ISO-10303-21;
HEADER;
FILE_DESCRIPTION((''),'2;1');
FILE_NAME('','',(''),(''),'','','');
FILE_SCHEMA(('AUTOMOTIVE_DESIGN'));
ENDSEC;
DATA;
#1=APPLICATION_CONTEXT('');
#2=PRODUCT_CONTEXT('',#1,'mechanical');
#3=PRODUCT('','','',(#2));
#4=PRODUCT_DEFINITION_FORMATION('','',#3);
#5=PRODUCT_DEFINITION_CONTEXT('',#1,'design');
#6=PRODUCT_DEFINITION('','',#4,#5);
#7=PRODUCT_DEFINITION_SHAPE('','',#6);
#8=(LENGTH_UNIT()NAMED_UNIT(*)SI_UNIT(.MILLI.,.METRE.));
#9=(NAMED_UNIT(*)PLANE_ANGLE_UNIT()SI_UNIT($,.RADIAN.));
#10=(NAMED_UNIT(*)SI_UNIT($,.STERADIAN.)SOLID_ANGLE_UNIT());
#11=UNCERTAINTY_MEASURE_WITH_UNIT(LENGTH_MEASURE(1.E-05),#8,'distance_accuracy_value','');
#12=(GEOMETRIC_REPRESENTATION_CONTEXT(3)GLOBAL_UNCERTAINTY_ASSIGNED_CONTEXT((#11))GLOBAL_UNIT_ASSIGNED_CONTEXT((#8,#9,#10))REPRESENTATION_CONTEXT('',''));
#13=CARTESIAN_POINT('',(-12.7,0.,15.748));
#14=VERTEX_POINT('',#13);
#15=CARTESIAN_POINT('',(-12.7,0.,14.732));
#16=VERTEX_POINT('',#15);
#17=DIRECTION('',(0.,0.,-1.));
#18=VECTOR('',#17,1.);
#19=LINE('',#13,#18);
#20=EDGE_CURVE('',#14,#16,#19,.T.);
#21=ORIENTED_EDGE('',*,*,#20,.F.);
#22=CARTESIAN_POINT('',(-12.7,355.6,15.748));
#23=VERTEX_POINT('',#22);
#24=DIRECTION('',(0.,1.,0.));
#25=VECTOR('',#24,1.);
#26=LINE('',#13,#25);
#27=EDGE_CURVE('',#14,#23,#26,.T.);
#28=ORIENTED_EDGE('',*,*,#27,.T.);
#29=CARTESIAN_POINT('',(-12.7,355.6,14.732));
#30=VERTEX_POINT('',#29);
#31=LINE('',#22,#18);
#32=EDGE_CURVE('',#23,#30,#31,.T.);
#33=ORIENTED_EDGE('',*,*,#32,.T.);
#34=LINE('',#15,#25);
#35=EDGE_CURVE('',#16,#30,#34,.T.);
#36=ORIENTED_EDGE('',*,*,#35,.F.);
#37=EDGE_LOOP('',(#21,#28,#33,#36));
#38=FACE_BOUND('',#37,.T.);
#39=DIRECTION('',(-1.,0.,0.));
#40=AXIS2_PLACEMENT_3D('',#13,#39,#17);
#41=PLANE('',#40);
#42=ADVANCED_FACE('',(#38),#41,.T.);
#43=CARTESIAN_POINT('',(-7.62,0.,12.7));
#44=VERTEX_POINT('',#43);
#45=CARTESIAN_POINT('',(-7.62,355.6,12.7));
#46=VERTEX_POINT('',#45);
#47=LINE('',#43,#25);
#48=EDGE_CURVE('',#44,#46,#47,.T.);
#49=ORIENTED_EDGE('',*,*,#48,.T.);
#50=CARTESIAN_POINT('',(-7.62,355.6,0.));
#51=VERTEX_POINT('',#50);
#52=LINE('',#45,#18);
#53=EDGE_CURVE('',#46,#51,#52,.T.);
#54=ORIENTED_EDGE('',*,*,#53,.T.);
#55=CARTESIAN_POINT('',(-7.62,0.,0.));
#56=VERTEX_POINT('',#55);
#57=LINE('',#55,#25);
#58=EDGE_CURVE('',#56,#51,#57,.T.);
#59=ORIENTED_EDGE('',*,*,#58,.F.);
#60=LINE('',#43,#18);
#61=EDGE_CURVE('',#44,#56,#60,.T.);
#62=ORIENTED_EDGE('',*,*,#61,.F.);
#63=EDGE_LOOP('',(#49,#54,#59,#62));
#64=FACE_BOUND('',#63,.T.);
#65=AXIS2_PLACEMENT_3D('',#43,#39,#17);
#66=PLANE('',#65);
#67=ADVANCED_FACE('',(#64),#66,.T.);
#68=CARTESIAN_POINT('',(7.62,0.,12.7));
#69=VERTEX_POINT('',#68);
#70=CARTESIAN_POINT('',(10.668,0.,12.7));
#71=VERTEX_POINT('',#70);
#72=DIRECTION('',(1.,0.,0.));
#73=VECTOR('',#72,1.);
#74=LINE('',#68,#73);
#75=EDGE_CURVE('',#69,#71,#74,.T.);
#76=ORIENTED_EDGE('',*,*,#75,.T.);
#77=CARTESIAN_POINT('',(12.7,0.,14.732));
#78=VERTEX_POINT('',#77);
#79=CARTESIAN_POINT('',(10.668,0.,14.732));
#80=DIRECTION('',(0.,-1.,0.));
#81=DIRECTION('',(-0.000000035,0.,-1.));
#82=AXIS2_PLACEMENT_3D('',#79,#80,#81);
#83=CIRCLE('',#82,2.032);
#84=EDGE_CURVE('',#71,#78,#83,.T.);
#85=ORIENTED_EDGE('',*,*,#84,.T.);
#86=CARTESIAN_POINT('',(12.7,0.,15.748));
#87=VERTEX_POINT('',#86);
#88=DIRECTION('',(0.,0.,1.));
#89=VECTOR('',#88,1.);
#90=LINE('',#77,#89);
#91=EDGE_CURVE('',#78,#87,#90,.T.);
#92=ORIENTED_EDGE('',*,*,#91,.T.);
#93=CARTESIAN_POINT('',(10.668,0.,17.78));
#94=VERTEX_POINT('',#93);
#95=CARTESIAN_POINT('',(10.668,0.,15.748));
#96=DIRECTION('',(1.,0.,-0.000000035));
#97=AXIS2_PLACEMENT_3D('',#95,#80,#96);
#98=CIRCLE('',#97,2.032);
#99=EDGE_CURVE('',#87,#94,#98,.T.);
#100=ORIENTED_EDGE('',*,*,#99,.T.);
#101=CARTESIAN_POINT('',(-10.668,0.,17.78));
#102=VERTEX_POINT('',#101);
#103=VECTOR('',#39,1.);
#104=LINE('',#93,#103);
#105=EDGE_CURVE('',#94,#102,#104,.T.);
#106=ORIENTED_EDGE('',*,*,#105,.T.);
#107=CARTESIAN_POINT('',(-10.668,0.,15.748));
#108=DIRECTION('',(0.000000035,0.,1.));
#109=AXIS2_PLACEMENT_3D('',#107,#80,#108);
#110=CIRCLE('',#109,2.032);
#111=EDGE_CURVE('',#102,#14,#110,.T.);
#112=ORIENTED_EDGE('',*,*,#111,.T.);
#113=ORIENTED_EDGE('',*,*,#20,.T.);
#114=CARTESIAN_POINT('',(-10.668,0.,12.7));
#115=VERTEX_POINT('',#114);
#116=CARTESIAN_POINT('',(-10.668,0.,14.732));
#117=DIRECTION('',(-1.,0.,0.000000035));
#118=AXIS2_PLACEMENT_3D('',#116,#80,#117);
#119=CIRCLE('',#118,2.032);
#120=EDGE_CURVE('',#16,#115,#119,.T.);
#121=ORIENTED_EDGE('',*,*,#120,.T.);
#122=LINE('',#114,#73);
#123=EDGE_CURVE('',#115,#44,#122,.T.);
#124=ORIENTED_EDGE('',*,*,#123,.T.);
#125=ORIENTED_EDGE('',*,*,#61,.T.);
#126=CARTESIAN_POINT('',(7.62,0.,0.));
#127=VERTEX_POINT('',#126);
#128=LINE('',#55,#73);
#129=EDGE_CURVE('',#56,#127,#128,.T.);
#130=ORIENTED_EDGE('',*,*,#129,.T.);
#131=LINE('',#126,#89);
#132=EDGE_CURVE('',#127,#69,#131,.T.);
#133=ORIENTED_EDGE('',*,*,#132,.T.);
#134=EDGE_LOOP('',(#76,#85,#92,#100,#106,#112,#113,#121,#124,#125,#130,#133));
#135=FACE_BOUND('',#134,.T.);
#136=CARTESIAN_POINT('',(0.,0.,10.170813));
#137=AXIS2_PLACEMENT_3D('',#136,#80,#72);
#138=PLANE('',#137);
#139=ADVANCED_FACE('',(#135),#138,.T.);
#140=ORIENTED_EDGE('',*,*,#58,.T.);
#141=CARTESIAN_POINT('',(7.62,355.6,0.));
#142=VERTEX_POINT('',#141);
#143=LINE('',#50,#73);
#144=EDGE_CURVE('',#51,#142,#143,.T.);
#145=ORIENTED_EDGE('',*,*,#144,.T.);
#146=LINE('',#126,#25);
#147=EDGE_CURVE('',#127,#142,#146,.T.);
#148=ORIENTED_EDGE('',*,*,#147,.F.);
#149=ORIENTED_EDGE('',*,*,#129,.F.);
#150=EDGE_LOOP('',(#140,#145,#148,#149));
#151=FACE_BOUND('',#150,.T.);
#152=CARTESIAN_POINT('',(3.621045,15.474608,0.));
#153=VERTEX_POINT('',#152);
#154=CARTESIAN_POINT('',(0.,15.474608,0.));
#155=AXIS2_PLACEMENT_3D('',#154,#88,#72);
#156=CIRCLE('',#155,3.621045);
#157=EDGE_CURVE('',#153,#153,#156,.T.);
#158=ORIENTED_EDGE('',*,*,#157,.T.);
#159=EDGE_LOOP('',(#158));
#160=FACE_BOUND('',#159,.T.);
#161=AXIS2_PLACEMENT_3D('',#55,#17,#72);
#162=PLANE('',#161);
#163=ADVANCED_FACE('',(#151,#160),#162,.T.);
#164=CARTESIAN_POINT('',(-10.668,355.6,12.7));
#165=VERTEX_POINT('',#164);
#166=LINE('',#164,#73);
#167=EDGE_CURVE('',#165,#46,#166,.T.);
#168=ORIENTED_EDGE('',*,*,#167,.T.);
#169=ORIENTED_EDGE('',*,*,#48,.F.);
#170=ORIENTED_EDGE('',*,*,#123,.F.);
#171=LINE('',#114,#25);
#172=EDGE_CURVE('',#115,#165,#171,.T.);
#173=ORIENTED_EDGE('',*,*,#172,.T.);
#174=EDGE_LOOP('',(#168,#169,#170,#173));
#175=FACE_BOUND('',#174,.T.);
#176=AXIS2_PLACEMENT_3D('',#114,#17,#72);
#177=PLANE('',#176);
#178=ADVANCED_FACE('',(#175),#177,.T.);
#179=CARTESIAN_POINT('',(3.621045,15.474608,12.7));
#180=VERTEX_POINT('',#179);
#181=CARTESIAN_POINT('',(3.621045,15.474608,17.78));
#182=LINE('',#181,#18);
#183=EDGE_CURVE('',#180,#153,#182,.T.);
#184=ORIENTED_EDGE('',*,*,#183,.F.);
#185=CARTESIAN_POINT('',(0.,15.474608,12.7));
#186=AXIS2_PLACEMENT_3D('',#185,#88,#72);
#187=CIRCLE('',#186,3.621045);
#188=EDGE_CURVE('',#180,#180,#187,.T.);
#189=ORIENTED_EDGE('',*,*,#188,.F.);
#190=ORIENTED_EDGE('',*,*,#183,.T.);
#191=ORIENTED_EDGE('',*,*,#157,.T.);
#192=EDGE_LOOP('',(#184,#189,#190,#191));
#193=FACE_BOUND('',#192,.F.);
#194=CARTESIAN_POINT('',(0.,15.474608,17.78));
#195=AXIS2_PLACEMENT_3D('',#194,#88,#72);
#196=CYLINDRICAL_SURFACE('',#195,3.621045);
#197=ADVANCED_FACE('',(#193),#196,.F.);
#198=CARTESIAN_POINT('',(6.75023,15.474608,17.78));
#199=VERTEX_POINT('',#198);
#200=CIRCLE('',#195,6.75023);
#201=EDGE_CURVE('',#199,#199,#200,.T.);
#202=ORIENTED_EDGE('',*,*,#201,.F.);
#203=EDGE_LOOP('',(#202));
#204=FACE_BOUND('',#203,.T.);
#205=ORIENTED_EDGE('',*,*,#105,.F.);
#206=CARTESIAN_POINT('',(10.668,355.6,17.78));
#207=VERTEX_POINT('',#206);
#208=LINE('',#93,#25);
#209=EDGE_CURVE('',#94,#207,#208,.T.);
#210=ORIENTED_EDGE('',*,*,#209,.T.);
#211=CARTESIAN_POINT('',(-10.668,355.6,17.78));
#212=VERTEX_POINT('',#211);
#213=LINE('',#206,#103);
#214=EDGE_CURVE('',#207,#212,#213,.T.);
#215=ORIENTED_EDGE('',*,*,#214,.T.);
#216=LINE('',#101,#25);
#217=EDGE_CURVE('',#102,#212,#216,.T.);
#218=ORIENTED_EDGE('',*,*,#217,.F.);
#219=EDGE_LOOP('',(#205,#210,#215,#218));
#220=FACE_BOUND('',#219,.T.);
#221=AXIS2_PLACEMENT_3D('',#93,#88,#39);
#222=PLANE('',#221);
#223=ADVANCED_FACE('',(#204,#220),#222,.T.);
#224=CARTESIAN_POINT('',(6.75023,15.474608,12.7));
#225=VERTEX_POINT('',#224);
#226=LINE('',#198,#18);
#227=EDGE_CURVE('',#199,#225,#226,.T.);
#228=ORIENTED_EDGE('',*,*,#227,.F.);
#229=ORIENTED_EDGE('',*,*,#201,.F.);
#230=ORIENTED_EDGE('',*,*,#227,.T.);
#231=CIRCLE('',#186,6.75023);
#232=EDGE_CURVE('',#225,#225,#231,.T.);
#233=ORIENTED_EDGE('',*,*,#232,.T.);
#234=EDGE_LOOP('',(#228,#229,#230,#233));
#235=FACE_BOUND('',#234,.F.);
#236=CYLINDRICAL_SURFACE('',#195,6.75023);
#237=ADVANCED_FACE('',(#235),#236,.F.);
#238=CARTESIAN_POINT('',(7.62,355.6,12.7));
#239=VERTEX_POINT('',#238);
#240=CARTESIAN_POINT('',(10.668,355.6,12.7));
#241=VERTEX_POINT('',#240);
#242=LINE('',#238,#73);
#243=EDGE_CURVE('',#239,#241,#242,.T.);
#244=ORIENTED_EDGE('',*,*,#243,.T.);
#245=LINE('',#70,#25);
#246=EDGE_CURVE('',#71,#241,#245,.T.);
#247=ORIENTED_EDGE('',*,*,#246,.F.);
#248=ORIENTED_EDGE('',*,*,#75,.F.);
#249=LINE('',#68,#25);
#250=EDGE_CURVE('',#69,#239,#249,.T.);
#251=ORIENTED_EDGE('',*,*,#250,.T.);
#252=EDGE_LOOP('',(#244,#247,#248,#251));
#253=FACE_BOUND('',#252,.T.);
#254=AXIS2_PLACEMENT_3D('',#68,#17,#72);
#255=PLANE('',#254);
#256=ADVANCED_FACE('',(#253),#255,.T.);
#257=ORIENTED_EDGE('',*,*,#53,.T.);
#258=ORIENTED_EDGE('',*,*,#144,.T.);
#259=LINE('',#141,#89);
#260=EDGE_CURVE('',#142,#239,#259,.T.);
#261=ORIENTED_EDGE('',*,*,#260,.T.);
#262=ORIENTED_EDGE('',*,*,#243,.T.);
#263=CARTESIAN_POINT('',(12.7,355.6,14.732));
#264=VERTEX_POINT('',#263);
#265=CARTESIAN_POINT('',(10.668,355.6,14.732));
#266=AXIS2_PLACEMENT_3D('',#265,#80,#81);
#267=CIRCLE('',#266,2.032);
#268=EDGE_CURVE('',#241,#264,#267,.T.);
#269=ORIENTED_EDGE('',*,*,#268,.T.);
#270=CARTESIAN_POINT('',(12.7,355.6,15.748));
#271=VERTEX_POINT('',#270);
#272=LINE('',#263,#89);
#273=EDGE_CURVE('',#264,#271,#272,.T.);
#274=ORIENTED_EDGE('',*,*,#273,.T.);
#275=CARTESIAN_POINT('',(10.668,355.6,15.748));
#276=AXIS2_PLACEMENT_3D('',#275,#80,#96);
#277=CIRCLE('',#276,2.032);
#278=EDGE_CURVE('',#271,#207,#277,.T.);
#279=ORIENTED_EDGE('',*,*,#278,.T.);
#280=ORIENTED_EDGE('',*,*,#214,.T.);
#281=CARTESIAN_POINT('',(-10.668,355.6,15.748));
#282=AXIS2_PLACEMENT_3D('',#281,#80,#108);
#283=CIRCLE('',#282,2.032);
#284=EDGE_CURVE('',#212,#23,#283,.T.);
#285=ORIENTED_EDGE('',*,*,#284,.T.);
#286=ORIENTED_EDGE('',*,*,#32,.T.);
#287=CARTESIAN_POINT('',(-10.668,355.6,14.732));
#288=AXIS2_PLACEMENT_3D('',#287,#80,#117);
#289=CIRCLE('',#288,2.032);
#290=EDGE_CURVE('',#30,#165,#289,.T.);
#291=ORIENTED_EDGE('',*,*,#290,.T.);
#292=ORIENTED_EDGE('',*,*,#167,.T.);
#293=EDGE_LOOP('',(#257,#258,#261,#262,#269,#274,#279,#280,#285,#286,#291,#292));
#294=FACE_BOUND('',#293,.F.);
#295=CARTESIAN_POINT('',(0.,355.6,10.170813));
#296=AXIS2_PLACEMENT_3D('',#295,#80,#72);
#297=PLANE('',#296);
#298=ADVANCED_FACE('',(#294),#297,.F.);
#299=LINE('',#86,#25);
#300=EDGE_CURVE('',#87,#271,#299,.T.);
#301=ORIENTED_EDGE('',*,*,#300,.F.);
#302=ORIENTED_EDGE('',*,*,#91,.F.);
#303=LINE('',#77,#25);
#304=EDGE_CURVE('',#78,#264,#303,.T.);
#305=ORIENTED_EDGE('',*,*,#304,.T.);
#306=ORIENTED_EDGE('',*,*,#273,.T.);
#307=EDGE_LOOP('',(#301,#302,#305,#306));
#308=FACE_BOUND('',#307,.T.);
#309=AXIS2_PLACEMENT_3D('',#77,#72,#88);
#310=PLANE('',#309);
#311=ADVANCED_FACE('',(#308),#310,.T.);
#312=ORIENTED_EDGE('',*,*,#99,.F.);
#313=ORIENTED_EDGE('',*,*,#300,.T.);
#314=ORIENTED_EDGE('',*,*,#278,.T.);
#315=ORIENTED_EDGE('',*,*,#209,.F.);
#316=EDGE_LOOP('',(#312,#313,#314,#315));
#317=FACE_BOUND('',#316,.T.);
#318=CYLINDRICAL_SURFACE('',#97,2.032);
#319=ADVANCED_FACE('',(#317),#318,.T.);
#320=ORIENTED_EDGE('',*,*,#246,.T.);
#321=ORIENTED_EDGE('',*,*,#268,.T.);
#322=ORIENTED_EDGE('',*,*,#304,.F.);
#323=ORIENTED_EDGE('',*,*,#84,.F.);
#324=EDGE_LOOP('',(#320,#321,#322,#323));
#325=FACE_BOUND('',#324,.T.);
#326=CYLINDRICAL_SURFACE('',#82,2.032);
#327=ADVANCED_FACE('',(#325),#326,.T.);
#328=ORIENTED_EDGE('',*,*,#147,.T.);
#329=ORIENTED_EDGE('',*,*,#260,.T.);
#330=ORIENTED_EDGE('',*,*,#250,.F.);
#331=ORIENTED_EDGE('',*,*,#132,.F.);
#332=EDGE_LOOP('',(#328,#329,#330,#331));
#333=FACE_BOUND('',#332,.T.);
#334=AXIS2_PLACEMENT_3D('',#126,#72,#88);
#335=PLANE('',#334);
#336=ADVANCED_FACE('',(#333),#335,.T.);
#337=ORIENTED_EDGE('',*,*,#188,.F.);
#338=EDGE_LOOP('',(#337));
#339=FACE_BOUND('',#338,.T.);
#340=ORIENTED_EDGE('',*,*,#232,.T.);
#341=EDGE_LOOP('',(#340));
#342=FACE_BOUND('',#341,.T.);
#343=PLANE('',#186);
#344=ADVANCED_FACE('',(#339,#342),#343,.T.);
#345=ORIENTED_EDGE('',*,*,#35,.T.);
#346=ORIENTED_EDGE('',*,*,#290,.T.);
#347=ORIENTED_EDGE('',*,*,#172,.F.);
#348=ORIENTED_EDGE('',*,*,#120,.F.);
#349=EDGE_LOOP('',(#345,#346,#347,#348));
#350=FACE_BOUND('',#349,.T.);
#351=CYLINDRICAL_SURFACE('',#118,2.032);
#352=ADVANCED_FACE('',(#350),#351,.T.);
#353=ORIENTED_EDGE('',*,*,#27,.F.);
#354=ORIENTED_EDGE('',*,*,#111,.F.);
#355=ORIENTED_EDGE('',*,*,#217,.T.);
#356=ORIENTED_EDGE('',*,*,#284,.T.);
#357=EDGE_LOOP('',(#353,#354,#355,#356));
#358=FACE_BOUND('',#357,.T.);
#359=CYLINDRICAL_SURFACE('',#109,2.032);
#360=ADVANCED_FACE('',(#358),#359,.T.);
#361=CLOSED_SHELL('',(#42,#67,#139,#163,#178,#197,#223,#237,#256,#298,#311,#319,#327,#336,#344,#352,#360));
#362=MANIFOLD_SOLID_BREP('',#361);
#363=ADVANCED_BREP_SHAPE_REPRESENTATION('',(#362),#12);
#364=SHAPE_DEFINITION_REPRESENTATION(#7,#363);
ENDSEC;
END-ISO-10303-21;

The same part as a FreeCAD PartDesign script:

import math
import FreeCAD as App
import Part
import Sketcher
Q = App.Units.Quantity

doc = App.newDocument("Part")
body = doc.addObject("PartDesign::Body", "Body")

# Sketch on XZ plane
sketch1 = body.newObject("Sketcher::SketchObject", "Sketch")
sketch1.AttachmentSupport = (doc.getObject("XZ_Plane"), [""])
sketch1.MapMode = "FlatFace"
sketch1.addGeometry(Part.LineSegment(App.Vector(10.7, 17.8, 0), App.Vector(-10.7, 17.8, 0)), False)
sketch1.addGeometry(Part.ArcOfCircle(Part.Circle(App.Vector(-10.7, 15.7, 0), App.Vector(0, 0, 1), 2), math.radians(90), math.radians(180)), False)
sketch1.addGeometry(Part.LineSegment(App.Vector(-12.7, 15.7, 0), App.Vector(-12.7, 14.7, 0)), False)
sketch1.addGeometry(Part.ArcOfCircle(Part.Circle(App.Vector(-10.7, 14.7, 0), App.Vector(0, 0, 1), 2), math.radians(180), math.radians(270)), False)
sketch1.addGeometry(Part.LineSegment(App.Vector(-10.7, 12.7, 0), App.Vector(-7.6, 12.7, 0)), False)
sketch1.addGeometry(Part.LineSegment(App.Vector(-7.6, 12.7, 0), App.Vector(-7.6, 0, 0)), False)
sketch1.addGeometry(Part.LineSegment(App.Vector(-7.6, 0, 0), App.Vector(7.6, 0, 0)), False)
sketch1.addGeometry(Part.LineSegment(App.Vector(7.6, 0, 0), App.Vector(7.6, 12.7, 0)), False)
sketch1.addGeometry(Part.LineSegment(App.Vector(7.6, 12.7, 0), App.Vector(10.7, 12.7, 0)), False)
sketch1.addGeometry(Part.ArcOfCircle(Part.Circle(App.Vector(10.7, 14.7, 0), App.Vector(0, 0, 1), 2), math.radians(-90), math.radians(0)), False)
sketch1.addGeometry(Part.LineSegment(App.Vector(12.7, 14.7, 0), App.Vector(12.7, 15.7, 0)), False)
sketch1.addGeometry(Part.ArcOfCircle(Part.Circle(App.Vector(10.7, 15.7, 0), App.Vector(0, 0, 1), 2), math.radians(0), math.radians(90)), False)
sketch1.addConstraint(Sketcher.Constraint("Tangent", 0, 2, 1, 1))
sketch1.addConstraint(Sketcher.Constraint("Tangent", 1, 2, 2, 1))
sketch1.addConstraint(Sketcher.Constraint("Tangent", 2, 2, 3, 1))
sketch1.addConstraint(Sketcher.Constraint("Tangent", 3, 2, 4, 1))
sketch1.addConstraint(Sketcher.Constraint("Coincident", 4, 2, 5, 1))
sketch1.addConstraint(Sketcher.Constraint("Coincident", 5, 2, 6, 1))
sketch1.addConstraint(Sketcher.Constraint("Coincident", 6, 2, 7, 1))
sketch1.addConstraint(Sketcher.Constraint("Coincident", 7, 2, 8, 1))
sketch1.addConstraint(Sketcher.Constraint("Tangent", 8, 2, 9, 1))
sketch1.addConstraint(Sketcher.Constraint("Tangent", 9, 2, 10, 1))
sketch1.addConstraint(Sketcher.Constraint("Tangent", 10, 2, 11, 1))
sketch1.addConstraint(Sketcher.Constraint("Tangent", 11, 2, 0, 1))
sketch1.addConstraint(Sketcher.Constraint("Horizontal", 0))
sketch1.addConstraint(Sketcher.Constraint("Vertical", 2))
sketch1.addConstraint(Sketcher.Constraint("Horizontal", 4))
sketch1.addConstraint(Sketcher.Constraint("Vertical", 5))
sketch1.addConstraint(Sketcher.Constraint("Horizontal", 6))
sketch1.addConstraint(Sketcher.Constraint("Vertical", 7))
sketch1.addConstraint(Sketcher.Constraint("Horizontal", 8))
sketch1.addConstraint(Sketcher.Constraint("Vertical", 10))
sketch1.addConstraint(Sketcher.Constraint("Equal", 1, 3))
sketch1.addConstraint(Sketcher.Constraint("Equal", 3, 9))
sketch1.addConstraint(Sketcher.Constraint("Equal", 9, 11))
sketch1.addConstraint(Sketcher.Constraint("Symmetric", 5, 2, 6, 2, -1, 1))
sketch1.addConstraint(Sketcher.Constraint("Symmetric", 3, 3, 9, 3, -2))
sketch1.addConstraint(Sketcher.Constraint("Radius", 1, Q("0.08 in")))
sketch1.addConstraint(Sketcher.Constraint("DistanceX", 6, 1, 6, 2, Q("0.6 in")))
sketch1.addConstraint(Sketcher.Constraint("DistanceY", 5, 2, 5, 1, Q("0.5 in")))
sketch1.addConstraint(Sketcher.Constraint("DistanceX", 0, 2, 0, 1, Q("0.84 in")))
sketch1.addConstraint(Sketcher.Constraint("DistanceY", 2, 2, 2, 1, Q("0.04 in")))
pad1 = body.newObject("PartDesign::Pad", "Pad")
pad1.Profile = sketch1
pad1.Length = Q("14 in")
pad1.Reversed = True

# Sketch on XY plane
sketch2 = body.newObject("Sketcher::SketchObject", "Sketch001")
sketch2.AttachmentSupport = (doc.getObject("XY_Plane"), [""])
sketch2.MapMode = "FlatFace"
sketch2.AttachmentOffset = App.Placement(App.Vector(0, 0, 0.7 * 25.4), App.Rotation())
sketch2.addGeometry(Part.Circle(App.Vector(0, 15, 0), App.Vector(0, 0, 1), 7), False)
sketch2.addConstraint(Sketcher.Constraint("PointOnObject", 0, 3, -2))
sketch2.addConstraint(Sketcher.Constraint("Diameter", 0, 13.50046))
sketch2.addConstraint(Sketcher.Constraint("DistanceY", -1, 1, 0, 3, 15.474608))
pocket1 = body.newObject("PartDesign::Pocket", "Pocket")
pocket1.Profile = sketch2
pocket1.Length = Q("0.2 in")

# Sketch on XY plane
sketch3 = body.newObject("Sketcher::SketchObject", "Sketch002")
sketch3.AttachmentSupport = (doc.getObject("XY_Plane"), [""])
sketch3.MapMode = "FlatFace"
sketch3.AttachmentOffset = App.Placement(App.Vector(0, 0, 0.7 * 25.4), App.Rotation())
sketch3.addGeometry(Part.Circle(App.Vector(0, 15.5, 0), App.Vector(0, 0, 1), 3.6), False)
sketch3.addConstraint(Sketcher.Constraint("PointOnObject", 0, 3, -2))
sketch3.addConstraint(Sketcher.Constraint("Diameter", 0, 7.24209))
sketch3.addConstraint(Sketcher.Constraint("DistanceY", -1, 1, 0, 3, 15.474608))
pocket2 = body.newObject("PartDesign::Pocket", "Pocket001")
pocket2.Profile = sketch3
pocket2.Length = Q("1 in")

doc.recompute()
